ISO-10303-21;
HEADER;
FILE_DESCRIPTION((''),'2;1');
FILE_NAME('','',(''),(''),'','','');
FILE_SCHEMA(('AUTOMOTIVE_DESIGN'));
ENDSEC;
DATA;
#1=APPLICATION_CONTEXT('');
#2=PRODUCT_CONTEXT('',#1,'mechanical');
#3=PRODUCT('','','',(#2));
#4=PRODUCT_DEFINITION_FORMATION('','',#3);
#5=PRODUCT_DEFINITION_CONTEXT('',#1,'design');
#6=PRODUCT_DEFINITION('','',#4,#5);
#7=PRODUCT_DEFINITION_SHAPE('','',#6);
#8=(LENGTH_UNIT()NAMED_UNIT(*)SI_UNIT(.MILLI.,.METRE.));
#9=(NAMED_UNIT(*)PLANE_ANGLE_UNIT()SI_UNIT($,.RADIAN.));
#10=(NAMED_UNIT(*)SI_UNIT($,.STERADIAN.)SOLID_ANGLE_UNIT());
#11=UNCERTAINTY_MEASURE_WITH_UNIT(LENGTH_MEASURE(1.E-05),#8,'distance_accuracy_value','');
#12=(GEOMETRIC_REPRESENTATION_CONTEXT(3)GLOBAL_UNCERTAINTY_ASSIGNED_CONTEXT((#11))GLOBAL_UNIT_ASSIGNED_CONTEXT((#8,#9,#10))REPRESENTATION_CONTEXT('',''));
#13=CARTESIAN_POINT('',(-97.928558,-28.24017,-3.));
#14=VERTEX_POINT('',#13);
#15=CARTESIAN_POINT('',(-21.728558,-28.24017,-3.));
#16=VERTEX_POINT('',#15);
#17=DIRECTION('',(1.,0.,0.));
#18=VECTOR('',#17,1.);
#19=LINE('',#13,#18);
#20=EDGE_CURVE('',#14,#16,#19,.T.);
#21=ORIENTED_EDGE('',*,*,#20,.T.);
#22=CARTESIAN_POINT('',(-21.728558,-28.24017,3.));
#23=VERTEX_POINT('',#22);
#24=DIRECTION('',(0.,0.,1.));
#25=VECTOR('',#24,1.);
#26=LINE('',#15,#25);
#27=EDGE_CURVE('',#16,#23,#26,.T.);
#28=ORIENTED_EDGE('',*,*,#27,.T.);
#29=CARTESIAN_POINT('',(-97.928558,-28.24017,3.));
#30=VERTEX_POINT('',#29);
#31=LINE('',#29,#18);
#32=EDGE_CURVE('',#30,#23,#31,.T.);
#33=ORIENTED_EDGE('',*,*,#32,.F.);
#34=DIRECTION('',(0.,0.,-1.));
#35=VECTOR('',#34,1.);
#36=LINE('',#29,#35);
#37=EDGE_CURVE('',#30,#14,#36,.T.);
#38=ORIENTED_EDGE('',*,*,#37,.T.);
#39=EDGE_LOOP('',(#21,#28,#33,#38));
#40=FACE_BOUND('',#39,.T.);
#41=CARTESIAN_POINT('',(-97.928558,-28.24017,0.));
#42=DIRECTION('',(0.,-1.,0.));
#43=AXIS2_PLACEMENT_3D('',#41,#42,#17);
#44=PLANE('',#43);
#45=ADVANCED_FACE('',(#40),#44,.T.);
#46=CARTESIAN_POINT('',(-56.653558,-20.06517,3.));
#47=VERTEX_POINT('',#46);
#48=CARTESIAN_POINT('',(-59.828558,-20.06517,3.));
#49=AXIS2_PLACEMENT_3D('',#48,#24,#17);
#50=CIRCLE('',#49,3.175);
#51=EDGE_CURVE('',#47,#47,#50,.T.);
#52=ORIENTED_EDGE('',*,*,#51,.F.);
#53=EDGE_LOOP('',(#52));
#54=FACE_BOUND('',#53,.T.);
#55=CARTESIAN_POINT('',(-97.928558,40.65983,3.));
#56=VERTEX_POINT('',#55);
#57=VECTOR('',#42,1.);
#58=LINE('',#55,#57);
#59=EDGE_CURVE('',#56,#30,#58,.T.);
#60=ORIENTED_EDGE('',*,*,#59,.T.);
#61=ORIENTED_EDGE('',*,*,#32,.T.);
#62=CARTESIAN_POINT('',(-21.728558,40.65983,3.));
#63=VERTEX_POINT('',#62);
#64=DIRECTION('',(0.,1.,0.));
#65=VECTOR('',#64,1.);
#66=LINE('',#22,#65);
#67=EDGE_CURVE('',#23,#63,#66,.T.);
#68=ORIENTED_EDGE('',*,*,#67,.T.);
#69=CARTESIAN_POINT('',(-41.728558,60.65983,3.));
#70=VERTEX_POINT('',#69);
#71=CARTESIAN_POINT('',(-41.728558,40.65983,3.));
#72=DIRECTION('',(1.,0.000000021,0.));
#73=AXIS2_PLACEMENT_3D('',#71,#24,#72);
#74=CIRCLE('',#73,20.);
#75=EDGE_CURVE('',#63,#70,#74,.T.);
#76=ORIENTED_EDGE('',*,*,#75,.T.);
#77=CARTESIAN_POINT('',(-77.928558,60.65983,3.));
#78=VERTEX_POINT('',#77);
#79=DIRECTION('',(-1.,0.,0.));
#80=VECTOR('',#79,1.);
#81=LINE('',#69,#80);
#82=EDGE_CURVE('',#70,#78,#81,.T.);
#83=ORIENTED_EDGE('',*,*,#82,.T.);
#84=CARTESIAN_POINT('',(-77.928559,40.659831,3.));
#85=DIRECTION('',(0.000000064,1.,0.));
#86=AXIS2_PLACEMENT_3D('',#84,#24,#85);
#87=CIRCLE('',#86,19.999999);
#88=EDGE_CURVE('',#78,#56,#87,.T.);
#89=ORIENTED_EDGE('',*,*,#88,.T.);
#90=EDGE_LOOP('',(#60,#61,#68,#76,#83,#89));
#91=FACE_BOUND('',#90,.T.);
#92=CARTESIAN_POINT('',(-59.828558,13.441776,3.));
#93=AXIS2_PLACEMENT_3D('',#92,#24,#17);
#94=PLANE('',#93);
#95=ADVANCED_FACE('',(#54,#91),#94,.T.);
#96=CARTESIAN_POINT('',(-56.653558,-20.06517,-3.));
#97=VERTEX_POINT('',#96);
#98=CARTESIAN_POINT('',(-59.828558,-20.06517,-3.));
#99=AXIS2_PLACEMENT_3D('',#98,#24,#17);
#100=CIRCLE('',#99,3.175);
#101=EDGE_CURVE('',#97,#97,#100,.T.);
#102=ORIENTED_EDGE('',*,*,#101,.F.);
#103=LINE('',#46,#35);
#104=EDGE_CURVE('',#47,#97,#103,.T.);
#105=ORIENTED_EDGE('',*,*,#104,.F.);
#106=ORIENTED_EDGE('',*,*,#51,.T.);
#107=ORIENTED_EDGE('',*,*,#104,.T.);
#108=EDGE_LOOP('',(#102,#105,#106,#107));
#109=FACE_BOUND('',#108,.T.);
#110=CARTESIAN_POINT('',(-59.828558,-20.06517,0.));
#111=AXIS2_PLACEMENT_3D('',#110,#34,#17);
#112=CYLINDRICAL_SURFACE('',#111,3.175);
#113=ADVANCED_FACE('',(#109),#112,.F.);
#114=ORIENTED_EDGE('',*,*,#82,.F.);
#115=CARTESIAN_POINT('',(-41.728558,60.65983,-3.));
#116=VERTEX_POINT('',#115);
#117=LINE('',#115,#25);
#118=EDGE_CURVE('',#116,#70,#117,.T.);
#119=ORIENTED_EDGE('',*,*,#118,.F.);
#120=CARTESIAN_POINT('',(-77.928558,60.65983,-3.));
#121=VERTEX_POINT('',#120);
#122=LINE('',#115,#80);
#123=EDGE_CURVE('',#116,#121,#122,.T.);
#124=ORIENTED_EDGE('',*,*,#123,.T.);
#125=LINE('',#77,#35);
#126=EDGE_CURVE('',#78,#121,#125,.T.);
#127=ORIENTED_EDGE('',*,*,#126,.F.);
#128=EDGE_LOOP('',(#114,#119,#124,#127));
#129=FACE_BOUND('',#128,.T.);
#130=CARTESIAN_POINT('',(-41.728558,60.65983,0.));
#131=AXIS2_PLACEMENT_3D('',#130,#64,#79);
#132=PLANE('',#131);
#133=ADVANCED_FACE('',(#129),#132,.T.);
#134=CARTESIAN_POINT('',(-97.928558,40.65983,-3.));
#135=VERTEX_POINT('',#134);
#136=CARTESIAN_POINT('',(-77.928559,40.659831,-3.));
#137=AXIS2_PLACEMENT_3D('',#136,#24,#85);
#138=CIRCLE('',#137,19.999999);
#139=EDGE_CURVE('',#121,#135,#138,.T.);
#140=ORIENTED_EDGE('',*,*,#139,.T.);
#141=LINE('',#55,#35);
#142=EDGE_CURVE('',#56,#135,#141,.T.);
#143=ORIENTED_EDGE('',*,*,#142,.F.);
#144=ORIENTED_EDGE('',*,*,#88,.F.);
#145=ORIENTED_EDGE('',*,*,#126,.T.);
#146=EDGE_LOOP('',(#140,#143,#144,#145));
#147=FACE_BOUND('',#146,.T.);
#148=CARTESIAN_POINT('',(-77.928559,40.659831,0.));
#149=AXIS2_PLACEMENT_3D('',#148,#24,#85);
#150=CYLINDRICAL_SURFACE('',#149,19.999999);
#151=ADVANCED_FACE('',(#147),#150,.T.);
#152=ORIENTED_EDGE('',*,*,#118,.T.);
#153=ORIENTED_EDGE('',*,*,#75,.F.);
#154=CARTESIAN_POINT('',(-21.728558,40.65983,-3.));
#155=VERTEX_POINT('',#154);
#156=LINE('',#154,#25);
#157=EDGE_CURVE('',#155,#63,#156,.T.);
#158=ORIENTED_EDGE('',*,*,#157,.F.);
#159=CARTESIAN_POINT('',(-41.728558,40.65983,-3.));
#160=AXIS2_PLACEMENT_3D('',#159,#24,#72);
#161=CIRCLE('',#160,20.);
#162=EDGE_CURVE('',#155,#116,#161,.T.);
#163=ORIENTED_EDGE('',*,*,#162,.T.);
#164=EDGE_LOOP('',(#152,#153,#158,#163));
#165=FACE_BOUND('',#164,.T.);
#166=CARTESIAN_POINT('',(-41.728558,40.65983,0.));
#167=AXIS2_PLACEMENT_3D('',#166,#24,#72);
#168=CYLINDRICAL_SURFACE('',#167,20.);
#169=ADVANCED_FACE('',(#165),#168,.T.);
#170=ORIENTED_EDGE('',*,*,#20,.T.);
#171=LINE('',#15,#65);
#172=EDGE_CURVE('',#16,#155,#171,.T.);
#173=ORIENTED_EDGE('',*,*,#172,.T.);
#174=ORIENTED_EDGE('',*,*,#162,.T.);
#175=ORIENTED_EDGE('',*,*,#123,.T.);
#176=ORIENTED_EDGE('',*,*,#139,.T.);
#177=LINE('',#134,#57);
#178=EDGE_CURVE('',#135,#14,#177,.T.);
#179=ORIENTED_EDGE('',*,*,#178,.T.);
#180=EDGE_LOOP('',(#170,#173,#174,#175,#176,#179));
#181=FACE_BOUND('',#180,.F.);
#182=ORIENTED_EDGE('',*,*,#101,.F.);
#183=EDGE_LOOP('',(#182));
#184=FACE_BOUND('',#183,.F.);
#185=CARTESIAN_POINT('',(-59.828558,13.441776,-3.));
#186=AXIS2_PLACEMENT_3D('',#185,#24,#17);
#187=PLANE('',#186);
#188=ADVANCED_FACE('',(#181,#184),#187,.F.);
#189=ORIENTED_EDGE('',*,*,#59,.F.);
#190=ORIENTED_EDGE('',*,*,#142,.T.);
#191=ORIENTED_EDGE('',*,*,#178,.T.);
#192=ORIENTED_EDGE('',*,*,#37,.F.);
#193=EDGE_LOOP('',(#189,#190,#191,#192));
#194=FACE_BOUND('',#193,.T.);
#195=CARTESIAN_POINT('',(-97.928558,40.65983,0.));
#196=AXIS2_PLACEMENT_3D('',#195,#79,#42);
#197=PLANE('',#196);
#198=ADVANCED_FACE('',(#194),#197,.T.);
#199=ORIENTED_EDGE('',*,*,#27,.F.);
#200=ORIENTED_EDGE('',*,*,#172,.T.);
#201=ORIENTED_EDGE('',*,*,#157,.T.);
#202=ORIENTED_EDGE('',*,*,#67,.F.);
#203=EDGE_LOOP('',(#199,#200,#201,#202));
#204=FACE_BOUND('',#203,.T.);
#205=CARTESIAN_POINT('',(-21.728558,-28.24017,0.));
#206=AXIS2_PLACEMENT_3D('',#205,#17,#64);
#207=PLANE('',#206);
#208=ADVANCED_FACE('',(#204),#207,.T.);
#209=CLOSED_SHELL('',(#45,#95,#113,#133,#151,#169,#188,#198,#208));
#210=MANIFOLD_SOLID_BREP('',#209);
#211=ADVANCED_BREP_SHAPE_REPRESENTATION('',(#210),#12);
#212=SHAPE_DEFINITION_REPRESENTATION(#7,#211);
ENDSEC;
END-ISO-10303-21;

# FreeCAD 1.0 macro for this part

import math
import FreeCAD as App
import Part
import Sketcher

doc = App.newDocument("Part")
params = doc.addObject("Spreadsheet::Sheet", "Params")
for row, (alias, value) in enumerate([
    ("sketch1_radius", "20 mm"),
    ("sketch1_diameter", "6.35 mm"),
    ("sketch1_width", "76.2 mm"),
    ("sketch1_height", "68.9 mm"),
    ("pad1_length", "6 mm"),
], start=1):
    params.set(f"A{row}", alias)
    params.set(f"B{row}", "=" + value)
    params.setAlias(f"B{row}", alias)

body = doc.addObject("PartDesign::Body", "Body")

sketch1 = body.newObject("Sketcher::SketchObject", "Sketch")
sketch1.AttachmentSupport = (doc.getObject("XY_Plane"), [""])
sketch1.MapMode = "FlatFace"
sketch1.addGeometry([
    Part.LineSegment(App.Vector(-97.9, -28.2, 0), App.Vector(-21.7, -28.2, 0)),
    Part.LineSegment(App.Vector(-21.7, -28.2, 0), App.Vector(-21.7, 40.7, 0)),
    Part.ArcOfCircle(Part.Circle(App.Vector(-41.7, 40.7, 0), App.Vector(0, 0, 1), 20), math.radians(0), math.radians(90)),
    Part.LineSegment(App.Vector(-41.7, 60.7, 0), App.Vector(-77.9, 60.7, 0)),
    Part.ArcOfCircle(Part.Circle(App.Vector(-77.9, 40.7, 0), App.Vector(0, 0, 1), 20), math.radians(90), math.radians(180)),
    Part.LineSegment(App.Vector(-97.9, 40.7, 0), App.Vector(-97.9, -28.2, 0)),
    Part.Circle(App.Vector(-59.8, -20.1, 0), App.Vector(0, 0, 1), 3.2),
], False)
sketch1.addConstraint([
    Sketcher.Constraint("Coincident", 0, 2, 1, 1),
    Sketcher.Constraint("Tangent", 1, 2, 2, 1),
    Sketcher.Constraint("Tangent", 2, 2, 3, 1),
    Sketcher.Constraint("Tangent", 3, 2, 4, 1),
    Sketcher.Constraint("Tangent", 4, 2, 5, 1),
    Sketcher.Constraint("Coincident", 5, 2, 0, 1),
    Sketcher.Constraint("Horizontal", 0),
    Sketcher.Constraint("Vertical", 1),
    Sketcher.Constraint("Horizontal", 3),
    Sketcher.Constraint("Vertical", 5),
    Sketcher.Constraint("Equal", 2, 4),
    Sketcher.Constraint("Radius", 2, 20.0),
    Sketcher.Constraint("Diameter", 6, 6.35),
    Sketcher.Constraint("DistanceX", 0, 1, 0, 2, 76.2),
    Sketcher.Constraint("DistanceY", 1, 1, 1, 2, 68.9),
    Sketcher.Constraint("DistanceX", 6, 3, 2, 3, 18.1),
    Sketcher.Constraint("DistanceY", 6, 3, 2, 3, 60.725),
    Sketcher.Constraint("DistanceX", 2, 3, -1, 1, 41.728558),
    Sketcher.Constraint("DistanceY", -1, 1, 2, 3, 40.65983),
])
sketch1.setExpression("Constraints[11]", "Params.sketch1_radius")
sketch1.setExpression("Constraints[12]", "Params.sketch1_diameter")
sketch1.setExpression("Constraints[13]", "Params.sketch1_width")
sketch1.setExpression("Constraints[14]", "Params.sketch1_height")
pad1 = body.newObject("PartDesign::Pad", "Pad")
pad1.Profile = sketch1
pad1.setExpression("Length", "Params.pad1_length")
pad1.Midplane = True

doc.recompute()
